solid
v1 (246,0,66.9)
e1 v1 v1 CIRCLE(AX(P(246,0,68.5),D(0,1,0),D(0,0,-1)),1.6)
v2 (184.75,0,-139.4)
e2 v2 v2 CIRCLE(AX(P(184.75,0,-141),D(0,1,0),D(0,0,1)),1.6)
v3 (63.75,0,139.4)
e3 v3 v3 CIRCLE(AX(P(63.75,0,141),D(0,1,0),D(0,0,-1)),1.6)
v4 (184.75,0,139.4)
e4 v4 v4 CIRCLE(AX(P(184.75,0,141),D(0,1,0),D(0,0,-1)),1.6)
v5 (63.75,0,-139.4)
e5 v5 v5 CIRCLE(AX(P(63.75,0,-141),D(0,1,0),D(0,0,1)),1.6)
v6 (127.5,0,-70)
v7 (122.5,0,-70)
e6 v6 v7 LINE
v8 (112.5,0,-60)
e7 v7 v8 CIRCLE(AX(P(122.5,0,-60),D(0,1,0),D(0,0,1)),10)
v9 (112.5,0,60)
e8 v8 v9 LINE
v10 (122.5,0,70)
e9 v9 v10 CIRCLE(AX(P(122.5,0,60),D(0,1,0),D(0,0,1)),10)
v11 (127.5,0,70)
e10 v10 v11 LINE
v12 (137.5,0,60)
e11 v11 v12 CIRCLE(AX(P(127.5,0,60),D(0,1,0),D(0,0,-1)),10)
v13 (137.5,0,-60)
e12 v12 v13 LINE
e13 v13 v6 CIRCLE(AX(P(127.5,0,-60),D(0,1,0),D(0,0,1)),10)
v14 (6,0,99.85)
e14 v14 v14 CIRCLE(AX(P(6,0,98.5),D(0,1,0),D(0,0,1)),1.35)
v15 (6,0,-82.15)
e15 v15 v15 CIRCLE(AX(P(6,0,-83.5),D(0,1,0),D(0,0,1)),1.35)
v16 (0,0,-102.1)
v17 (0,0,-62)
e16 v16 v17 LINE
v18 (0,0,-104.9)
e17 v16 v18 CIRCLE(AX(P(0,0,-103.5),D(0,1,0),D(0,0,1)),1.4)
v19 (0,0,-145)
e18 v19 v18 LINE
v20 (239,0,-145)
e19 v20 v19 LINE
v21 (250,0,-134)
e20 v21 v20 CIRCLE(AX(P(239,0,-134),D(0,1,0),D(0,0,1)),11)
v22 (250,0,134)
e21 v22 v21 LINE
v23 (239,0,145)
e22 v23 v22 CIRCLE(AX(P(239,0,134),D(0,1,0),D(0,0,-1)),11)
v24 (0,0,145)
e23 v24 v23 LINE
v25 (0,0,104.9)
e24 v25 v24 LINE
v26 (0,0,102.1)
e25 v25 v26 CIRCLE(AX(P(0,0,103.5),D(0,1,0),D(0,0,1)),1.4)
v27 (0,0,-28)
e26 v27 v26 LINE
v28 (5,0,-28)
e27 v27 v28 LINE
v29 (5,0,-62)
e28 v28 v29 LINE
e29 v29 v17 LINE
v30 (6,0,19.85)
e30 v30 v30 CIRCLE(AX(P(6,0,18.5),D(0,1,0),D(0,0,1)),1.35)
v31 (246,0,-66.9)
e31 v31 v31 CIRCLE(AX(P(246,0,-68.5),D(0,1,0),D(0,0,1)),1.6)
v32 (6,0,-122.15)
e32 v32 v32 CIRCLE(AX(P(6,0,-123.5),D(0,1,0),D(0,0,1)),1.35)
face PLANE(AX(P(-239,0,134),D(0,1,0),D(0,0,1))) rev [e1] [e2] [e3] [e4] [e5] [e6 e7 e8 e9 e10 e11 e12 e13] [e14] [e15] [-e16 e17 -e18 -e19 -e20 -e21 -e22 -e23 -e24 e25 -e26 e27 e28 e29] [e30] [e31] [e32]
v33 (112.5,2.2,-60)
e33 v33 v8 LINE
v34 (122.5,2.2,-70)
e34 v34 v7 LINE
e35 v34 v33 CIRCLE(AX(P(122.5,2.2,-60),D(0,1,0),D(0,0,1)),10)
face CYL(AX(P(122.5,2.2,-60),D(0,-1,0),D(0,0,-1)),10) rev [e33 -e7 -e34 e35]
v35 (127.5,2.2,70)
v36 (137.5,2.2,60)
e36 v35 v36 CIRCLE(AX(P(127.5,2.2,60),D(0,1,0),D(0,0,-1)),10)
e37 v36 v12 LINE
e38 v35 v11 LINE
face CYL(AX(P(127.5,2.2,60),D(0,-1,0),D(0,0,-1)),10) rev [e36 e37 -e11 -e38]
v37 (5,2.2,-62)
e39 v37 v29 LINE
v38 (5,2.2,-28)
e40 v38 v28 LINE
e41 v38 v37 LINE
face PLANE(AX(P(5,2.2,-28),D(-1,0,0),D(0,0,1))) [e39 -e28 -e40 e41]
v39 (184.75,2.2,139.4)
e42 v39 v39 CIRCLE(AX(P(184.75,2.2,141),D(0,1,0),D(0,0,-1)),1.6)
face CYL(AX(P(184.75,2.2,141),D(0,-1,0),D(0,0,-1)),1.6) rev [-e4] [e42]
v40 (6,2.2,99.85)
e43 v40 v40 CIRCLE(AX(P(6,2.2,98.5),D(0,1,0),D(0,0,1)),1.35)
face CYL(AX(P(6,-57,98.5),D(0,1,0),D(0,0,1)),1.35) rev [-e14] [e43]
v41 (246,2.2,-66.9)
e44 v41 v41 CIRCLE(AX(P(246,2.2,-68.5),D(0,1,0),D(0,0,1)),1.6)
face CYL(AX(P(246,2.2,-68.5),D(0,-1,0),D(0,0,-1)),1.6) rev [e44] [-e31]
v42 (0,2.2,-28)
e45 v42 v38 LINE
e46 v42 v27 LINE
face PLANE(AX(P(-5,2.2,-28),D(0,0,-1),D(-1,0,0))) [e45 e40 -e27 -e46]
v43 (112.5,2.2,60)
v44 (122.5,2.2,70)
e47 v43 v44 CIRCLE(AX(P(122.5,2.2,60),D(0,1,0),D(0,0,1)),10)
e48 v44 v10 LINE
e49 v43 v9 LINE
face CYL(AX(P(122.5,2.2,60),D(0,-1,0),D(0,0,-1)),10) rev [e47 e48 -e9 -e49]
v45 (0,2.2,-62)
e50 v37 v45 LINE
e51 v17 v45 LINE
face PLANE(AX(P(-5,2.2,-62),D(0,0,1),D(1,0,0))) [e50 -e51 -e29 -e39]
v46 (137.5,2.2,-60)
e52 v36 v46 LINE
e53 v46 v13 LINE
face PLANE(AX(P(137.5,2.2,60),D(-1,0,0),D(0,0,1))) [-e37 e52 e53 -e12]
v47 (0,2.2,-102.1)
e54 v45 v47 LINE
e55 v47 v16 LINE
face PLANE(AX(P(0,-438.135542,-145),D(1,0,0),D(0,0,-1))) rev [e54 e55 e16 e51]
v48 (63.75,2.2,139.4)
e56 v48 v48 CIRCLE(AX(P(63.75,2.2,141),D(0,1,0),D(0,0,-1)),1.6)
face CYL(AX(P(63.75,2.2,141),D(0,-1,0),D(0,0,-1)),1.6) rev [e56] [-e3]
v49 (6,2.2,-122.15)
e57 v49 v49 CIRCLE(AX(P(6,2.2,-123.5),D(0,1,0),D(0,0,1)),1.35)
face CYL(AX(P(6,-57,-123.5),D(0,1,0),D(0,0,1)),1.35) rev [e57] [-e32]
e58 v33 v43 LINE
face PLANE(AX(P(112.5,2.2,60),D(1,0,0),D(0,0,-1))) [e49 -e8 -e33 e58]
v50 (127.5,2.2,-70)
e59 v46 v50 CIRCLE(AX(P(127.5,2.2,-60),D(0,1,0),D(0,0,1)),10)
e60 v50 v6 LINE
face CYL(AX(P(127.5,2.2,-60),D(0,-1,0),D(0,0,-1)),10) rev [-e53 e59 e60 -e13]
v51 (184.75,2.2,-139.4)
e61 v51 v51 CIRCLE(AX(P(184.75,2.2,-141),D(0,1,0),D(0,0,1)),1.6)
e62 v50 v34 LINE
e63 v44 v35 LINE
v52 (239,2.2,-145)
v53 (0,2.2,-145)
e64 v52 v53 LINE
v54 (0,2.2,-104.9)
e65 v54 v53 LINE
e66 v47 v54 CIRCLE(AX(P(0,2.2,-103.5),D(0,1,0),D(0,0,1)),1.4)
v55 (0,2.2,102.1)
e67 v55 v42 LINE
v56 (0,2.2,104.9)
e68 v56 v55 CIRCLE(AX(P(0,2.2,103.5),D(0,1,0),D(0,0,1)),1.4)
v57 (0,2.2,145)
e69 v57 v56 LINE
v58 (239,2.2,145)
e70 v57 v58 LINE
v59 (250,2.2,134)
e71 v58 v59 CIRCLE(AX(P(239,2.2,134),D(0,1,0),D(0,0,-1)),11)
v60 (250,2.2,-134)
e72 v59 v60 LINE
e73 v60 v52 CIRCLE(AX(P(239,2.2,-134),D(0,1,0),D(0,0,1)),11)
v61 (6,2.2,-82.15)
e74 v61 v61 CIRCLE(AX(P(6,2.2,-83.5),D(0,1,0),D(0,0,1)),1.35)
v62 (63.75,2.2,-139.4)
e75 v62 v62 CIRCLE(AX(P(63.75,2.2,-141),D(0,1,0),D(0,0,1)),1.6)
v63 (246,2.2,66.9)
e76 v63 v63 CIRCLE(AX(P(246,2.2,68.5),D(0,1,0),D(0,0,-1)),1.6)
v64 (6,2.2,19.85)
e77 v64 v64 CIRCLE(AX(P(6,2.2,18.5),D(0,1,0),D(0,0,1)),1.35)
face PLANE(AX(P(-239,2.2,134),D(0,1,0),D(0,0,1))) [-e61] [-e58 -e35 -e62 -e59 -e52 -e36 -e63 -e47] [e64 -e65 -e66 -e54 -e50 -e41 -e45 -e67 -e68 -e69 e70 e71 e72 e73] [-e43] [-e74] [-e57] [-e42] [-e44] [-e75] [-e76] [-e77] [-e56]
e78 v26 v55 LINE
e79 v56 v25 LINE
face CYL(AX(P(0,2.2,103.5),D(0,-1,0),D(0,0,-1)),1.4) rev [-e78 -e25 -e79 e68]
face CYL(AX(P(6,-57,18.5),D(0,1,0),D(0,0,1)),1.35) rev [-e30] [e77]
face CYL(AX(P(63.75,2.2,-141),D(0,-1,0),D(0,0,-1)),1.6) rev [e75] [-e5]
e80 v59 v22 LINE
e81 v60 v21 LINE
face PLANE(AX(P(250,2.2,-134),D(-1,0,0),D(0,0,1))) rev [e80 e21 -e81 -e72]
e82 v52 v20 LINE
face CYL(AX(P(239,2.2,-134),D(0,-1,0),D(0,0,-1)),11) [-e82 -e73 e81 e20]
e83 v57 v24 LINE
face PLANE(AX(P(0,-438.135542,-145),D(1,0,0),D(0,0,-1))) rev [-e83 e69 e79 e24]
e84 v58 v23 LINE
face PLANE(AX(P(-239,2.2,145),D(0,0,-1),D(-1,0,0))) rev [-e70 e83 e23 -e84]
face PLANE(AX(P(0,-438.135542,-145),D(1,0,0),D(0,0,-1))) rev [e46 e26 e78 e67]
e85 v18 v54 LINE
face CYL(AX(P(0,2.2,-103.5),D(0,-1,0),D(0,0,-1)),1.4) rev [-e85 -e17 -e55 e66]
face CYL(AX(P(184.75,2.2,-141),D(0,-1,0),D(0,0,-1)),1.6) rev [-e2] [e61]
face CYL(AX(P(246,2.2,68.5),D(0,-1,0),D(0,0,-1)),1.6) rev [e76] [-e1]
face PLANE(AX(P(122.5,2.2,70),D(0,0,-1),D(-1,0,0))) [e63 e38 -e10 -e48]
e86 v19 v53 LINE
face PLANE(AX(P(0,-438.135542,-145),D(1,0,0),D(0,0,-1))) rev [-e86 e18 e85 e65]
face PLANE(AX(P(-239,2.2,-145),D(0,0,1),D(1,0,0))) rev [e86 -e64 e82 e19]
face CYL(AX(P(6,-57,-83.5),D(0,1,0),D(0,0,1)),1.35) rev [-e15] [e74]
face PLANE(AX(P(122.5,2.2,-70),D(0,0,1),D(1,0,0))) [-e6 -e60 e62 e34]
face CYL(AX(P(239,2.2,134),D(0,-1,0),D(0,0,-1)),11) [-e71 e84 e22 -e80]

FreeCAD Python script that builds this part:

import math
import FreeCAD as App
import Part
import Sketcher
from FreeCAD import Vector

doc = App.newDocument("Part")
body = doc.addObject("PartDesign::Body", "Body")

sketch1 = body.newObject("Sketcher::SketchObject", "Sketch")
sketch1.AttachmentSupport = (doc.getObject("XZ_Plane"), [""])
sketch1.MapMode = "FlatFace"
sketch1.addGeometry([
    Part.LineSegment(Vector(239, -145, 0), Vector(-239, -145, 0)),
    Part.ArcOfCircle(Part.Circle(Vector(-239, -134, 0), Vector(0, 0, 1), 11), math.radians(180), math.radians(270)),
    Part.LineSegment(Vector(-250, -134, 0), Vector(-250, 134, 0)),
    Part.ArcOfCircle(Part.Circle(Vector(-239, 134, 0), Vector(0, 0, 1), 11), math.radians(90), math.radians(180)),
    Part.LineSegment(Vector(-239, 145, 0), Vector(239, 145, 0)),
    Part.ArcOfCircle(Part.Circle(Vector(239, 134, 0), Vector(0, 0, 1), 11), math.radians(0), math.radians(90)),
    Part.LineSegment(Vector(250, 134, 0), Vector(250, -134, 0)),
    Part.ArcOfCircle(Part.Circle(Vector(239, -134, 0), Vector(0, 0, 1), 11), math.radians(-90), math.radians(0)),
    Part.Circle(Vector(184.8, 141, 0), Vector(0, 0, 1), 1.6),
    Part.Circle(Vector(63.8, 141, 0), Vector(0, 0, 1), 1.6),
    Part.Circle(Vector(246, 68.5, 0), Vector(0, 0, 1), 1.6),
    Part.Circle(Vector(-63.8, 141, 0), Vector(0, 0, 1), 1.6),
    Part.Circle(Vector(0, 103.5, 0), Vector(0, 0, 1), 1.4),
    Part.Circle(Vector(-184.8, 141, 0), Vector(0, 0, 1), 1.6),
    Part.Circle(Vector(-246, 68.5, 0), Vector(0, 0, 1), 1.6),
    Part.ArcOfCircle(Part.Circle(Vector(122.5, 60, 0), Vector(0, 0, 1), 10), math.radians(90), math.radians(180)),
    Part.LineSegment(Vector(112.5, 60, 0), Vector(112.5, -60, 0)),
    Part.ArcOfCircle(Part.Circle(Vector(122.5, -60, 0), Vector(0, 0, 1), 10), math.radians(180), math.radians(270)),
    Part.LineSegment(Vector(122.5, -70, 0), Vector(127.5, -70, 0)),
    Part.ArcOfCircle(Part.Circle(Vector(127.5, -60, 0), Vector(0, 0, 1), 10), math.radians(-90), math.radians(0)),
    Part.LineSegment(Vector(137.5, -60, 0), Vector(137.5, 60, 0)),
    Part.ArcOfCircle(Part.Circle(Vector(127.5, 60, 0), Vector(0, 0, 1), 10), math.radians(0), math.radians(90)),
    Part.LineSegment(Vector(127.5, 70, 0), Vector(122.5, 70, 0)),
    Part.Circle(Vector(246, -68.5, 0), Vector(0, 0, 1), 1.6),
    Part.Circle(Vector(184.8, -141, 0), Vector(0, 0, 1), 1.6),
    Part.Circle(Vector(63.8, -141, 0), Vector(0, 0, 1), 1.6),
    Part.LineSegment(Vector(-5, -28, 0), Vector(-5, -62, 0)),
    Part.LineSegment(Vector(-5, -62, 0), Vector(5, -62, 0)),
    Part.LineSegment(Vector(5, -62, 0), Vector(5, -28, 0)),
    Part.LineSegment(Vector(5, -28, 0), Vector(-5, -28, 0)),
    Part.ArcOfCircle(Part.Circle(Vector(-127.5, 60, 0), Vector(0, 0, 1), 10), math.radians(90), math.radians(180)),
    Part.LineSegment(Vector(-137.5, 60, 0), Vector(-137.5, -60, 0)),
    Part.ArcOfCircle(Part.Circle(Vector(-127.5, -60, 0), Vector(0, 0, 1), 10), math.radians(180), math.radians(270)),
    Part.LineSegment(Vector(-127.5, -70, 0), Vector(-122.5, -70, 0)),
    Part.ArcOfCircle(Part.Circle(Vector(-122.5, -60, 0), Vector(0, 0, 1), 10), math.radians(-90), math.radians(0)),
    Part.LineSegment(Vector(-112.5, -60, 0), Vector(-112.5, 60, 0)),
    Part.ArcOfCircle(Part.Circle(Vector(-122.5, 60, 0), Vector(0, 0, 1), 10), math.radians(0), math.radians(90)),
    Part.LineSegment(Vector(-122.5, 70, 0), Vector(-127.5, 70, 0)),
    Part.Circle(Vector(-246, -68.5, 0), Vector(0, 0, 1), 1.6),
    Part.Circle(Vector(0, -103.5, 0), Vector(0, 0, 1), 1.4),
    Part.Circle(Vector(-63.8, -141, 0), Vector(0, 0, 1), 1.6),
    Part.Circle(Vector(-184.8, -141, 0), Vector(0, 0, 1), 1.6),
], False)
sketch1.addConstraint([
    Sketcher.Constraint("Tangent", 0, 2, 1, 2),
    Sketcher.Constraint("Tangent", 1, 1, 2, 1),
    Sketcher.Constraint("Tangent", 2, 2, 3, 2),
    Sketcher.Constraint("Tangent", 3, 1, 4, 1),
    Sketcher.Constraint("Tangent", 4, 2, 5, 2),
    Sketcher.Constraint("Tangent", 5, 1, 6, 1),
    Sketcher.Constraint("Tangent", 6, 2, 7, 2),
    Sketcher.Constraint("Tangent", 7, 1, 0, 1),
    Sketcher.Constraint("Tangent", 15, 2, 16, 1),
    Sketcher.Constraint("Tangent", 16, 2, 17, 1),
    Sketcher.Constraint("Tangent", 17, 2, 18, 1),
    Sketcher.Constraint("Tangent", 18, 2, 19, 1),
    Sketcher.Constraint("Tangent", 19, 2, 20, 1),
    Sketcher.Constraint("Tangent", 20, 2, 21, 1),
    Sketcher.Constraint("Tangent", 21, 2, 22, 1),
    Sketcher.Constraint("Tangent", 22, 2, 15, 1),
    Sketcher.Constraint("Coincident", 26, 2, 27, 1),
    Sketcher.Constraint("Coincident", 27, 2, 28, 1),
    Sketcher.Constraint("Coincident", 28, 2, 29, 1),
    Sketcher.Constraint("Coincident", 29, 2, 26, 1),
    Sketcher.Constraint("Tangent", 30, 2, 31, 1),
    Sketcher.Constraint("Tangent", 31, 2, 32, 1),
    Sketcher.Constraint("Tangent", 32, 2, 33, 1),
    Sketcher.Constraint("Tangent", 33, 2, 34, 1),
    Sketcher.Constraint("Tangent", 34, 2, 35, 1),
    Sketcher.Constraint("Tangent", 35, 2, 36, 1),
    Sketcher.Constraint("Tangent", 36, 2, 37, 1),
    Sketcher.Constraint("Tangent", 37, 2, 30, 1),
    Sketcher.Constraint("Horizontal", 0),
    Sketcher.Constraint("Vertical", 2),
    Sketcher.Constraint("Horizontal", 4),
    Sketcher.Constraint("Vertical", 6),
    Sketcher.Constraint("Vertical", 16),
    Sketcher.Constraint("Horizontal", 18),
    Sketcher.Constraint("Vertical", 20),
    Sketcher.Constraint("Horizontal", 22),
    Sketcher.Constraint("Vertical", 26),
    Sketcher.Constraint("Horizontal", 27),
    Sketcher.Constraint("Vertical", 28),
    Sketcher.Constraint("Horizontal", 29),
    Sketcher.Constraint("Vertical", 31),
    Sketcher.Constraint("Horizontal", 33),
    Sketcher.Constraint("Vertical", 35),
    Sketcher.Constraint("Horizontal", 37),
    Sketcher.Constraint("Equal", 1, 3),
    Sketcher.Constraint("Equal", 3, 5),
    Sketcher.Constraint("Equal", 5, 7),
    Sketcher.Constraint("Equal", 8, 9),
    Sketcher.Constraint("Equal", 9, 10),
    Sketcher.Constraint("Equal", 10, 11),
    Sketcher.Constraint("Equal", 11, 13),
    Sketcher.Constraint("Equal", 13, 14),
    Sketcher.Constraint("Equal", 15, 17),
    Sketcher.Constraint("Equal", 17, 19),
    Sketcher.Constraint("Equal", 19, 21),
    Sketcher.Constraint("Equal", 14, 23),
    Sketcher.Constraint("Equal", 23, 24),
    Sketcher.Constraint("Equal", 24, 25),
    Sketcher.Constraint("Equal", 21, 30),
    Sketcher.Constraint("Equal", 30, 32),
    Sketcher.Constraint("Equal", 32, 34),
    Sketcher.Constraint("Equal", 34, 36),
    Sketcher.Constraint("Equal", 25, 38),
    Sketcher.Constraint("Equal", 12, 39),
    Sketcher.Constraint("Equal", 38, 40),
    Sketcher.Constraint("Equal", 40, 41),
    Sketcher.Constraint("Symmetric", 1, 3, 5, 3, -1, 1),
    Sketcher.Constraint("Symmetric", 14, 3, 23, 3, -1, 1),
    Sketcher.Constraint("Symmetric", 13, 3, 24, 3, -1, 1),
    Sketcher.Constraint("Symmetric", 11, 3, 25, 3, -1, 1),
    Sketcher.Constraint("Symmetric", 19, 3, 30, 3, -1, 1),
    Sketcher.Constraint("Symmetric", 15, 3, 34, 3, -1, 1),
    Sketcher.Constraint("Symmetric", 10, 3, 38, 3, -1, 1),
    Sketcher.Constraint("Symmetric", 12, 3, 39, 3, -1, 1),
    Sketcher.Constraint("Symmetric", 9, 3, 40, 3, -1, 1),
    Sketcher.Constraint("Symmetric", 8, 3, 41, 3, -1, 1),
    Sketcher.Constraint("Symmetric", 9, 3, 11, 3, -2),
    Sketcher.Constraint("Symmetric", 8, 3, 13, 3, -2),
    Sketcher.Constraint("Symmetric", 10, 3, 14, 3, -2),
    Sketcher.Constraint("PointOnObject", 12, 3, -2),
    Sketcher.Constraint("Horizontal", 8, 3, 9, 3),
    Sketcher.Constraint("Horizontal", 21, 3, 30, 3),
    Sketcher.Constraint("Radius", 1, 11.0),
    Sketcher.Constraint("Radius", 15, 10.0),
    Sketcher.Constraint("Diameter", 8, 3.2),
    Sketcher.Constraint("Diameter", 12, 2.8),
    Sketcher.Constraint("DistanceX", 0, 2, 0, 1, 478.0),
    Sketcher.Constraint("DistanceX", 18, 1, 18, 2, 5.0),
    Sketcher.Constraint("DistanceX", 27, 1, 27, 2, 10.0),
    Sketcher.Constraint("DistanceY", 2, 1, 2, 2, 268.0),
    Sketcher.Constraint("DistanceY", 16, 2, 16, 1, 120.0),
    Sketcher.Constraint("DistanceY", 26, 2, 26, 1, 34.0),
    Sketcher.Constraint("DistanceY", -1, 1, 8, 3, 141.0),
    Sketcher.Constraint("DistanceX", -1, 1, 10, 3, 246.0),
    Sketcher.Constraint("DistanceX", 26, 2, -1, 1, 5.0),
    Sketcher.Constraint("DistanceY", 26, 2, -1, 1, 62.0),
    Sketcher.Constraint("DistanceX", 9, 3, 8, 3, 121.0),
    Sketcher.Constraint("DistanceY", 14, 3, 12, 3, 35.0),
    Sketcher.Constraint("DistanceY", 23, 3, 10, 3, 137.0),
    Sketcher.Constraint("DistanceX", -1, 1, 15, 3, 122.5),
    Sketcher.Constraint("DistanceX", 11, 3, 9, 3, 127.5),
])
pad1 = body.newObject("PartDesign::Pad", "Pad")
pad1.Profile = sketch1
pad1.Length = 2.2
pad1.Reversed = True

sketch2 = body.newObject("Sketcher::SketchObject", "Sketch001")
sketch2.AttachmentSupport = (doc.getObject("XZ_Plane"), [""])
sketch2.MapMode = "FlatFace"
sketch2.AttachmentOffset = App.Placement(Vector(0, 0, -2.2), App.Rotation())
sketch2.addGeometry([
    Part.Circle(Vector(-6, 18.5, 0), Vector(0, 0, 1), 1.4),
    Part.Circle(Vector(6, 18.5, 0), Vector(0, 0, 1), 1.4),
    Part.Circle(Vector(-6, 98.5, 0), Vector(0, 0, 1), 1.4),
    Part.Circle(Vector(6, 98.5, 0), Vector(0, 0, 1), 1.4),
    Part.Circle(Vector(-6, -123.5, 0), Vector(0, 0, 1), 1.4),
    Part.Circle(Vector(6, -123.5, 0), Vector(0, 0, 1), 1.4),
    Part.Circle(Vector(-6, -83.5, 0), Vector(0, 0, 1), 1.4),
    Part.Circle(Vector(6, -83.5, 0), Vector(0, 0, 1), 1.4),
], False)
sketch2.addConstraint([
    Sketcher.Constraint("Equal", 0, 1),
    Sketcher.Constraint("Equal", 1, 2),
    Sketcher.Constraint("Equal", 2, 3),
    Sketcher.Constraint("Equal", 3, 4),
    Sketcher.Constraint("Equal", 4, 5),
    Sketcher.Constraint("Equal", 5, 6),
    Sketcher.Constraint("Equal", 6, 7),
    Sketcher.Constraint("Symmetric", 0, 3, 1, 3, -2),
    Sketcher.Constraint("Symmetric", 2, 3, 3, 3, -2),
    Sketcher.Constraint("Symmetric", 4, 3, 5, 3, -2),
    Sketcher.Constraint("Symmetric", 6, 3, 7, 3, -2),
    Sketcher.Constraint("Vertical", 0, 3, 2, 3),
    Sketcher.Constraint("Vertical", 2, 3, 4, 3),
    Sketcher.Constraint("Vertical", 4, 3, 6, 3),
    Sketcher.Constraint("Diameter", 0, 2.7),
    Sketcher.Constraint("DistanceX", 0, 3, -1, 1, 6.0),
    Sketcher.Constraint("DistanceY", 0, 3, 2, 3, 80.0),
    Sketcher.Constraint("DistanceY", 4, 3, 0, 3, 142.0),
    Sketcher.Constraint("DistanceY", 4, 3, 6, 3, 40.0),
    Sketcher.Constraint("DistanceY", -1, 1, 0, 3, 18.5),
])
pocket1 = body.newObject("PartDesign::Pocket", "Pocket")
pocket1.Profile = sketch2
pocket1.Length = 59.2
pocket1.Reversed = True

sketch3 = body.newObject("Sketcher::SketchObject", "Sketch002")
sketch3.AttachmentSupport = (doc.getObject("XZ_Plane"), [""])
sketch3.MapMode = "FlatFace"
sketch3.AttachmentOffset = App.Placement(Vector(0, 0, -2.2), App.Rotation())
sketch3.addGeometry([
    Part.LineSegment(Vector(-293, -145, 0), Vector(-293, 181, 0)),
    Part.LineSegment(Vector(-293, 181, 0), Vector(0, 181, 0)),
    Part.LineSegment(Vector(0, 181, 0), Vector(0, -145, 0)),
    Part.LineSegment(Vector(0, -145, 0), Vector(-293, -145, 0)),
], False)
sketch3.addConstraint([
    Sketcher.Constraint("Coincident", 0, 2, 1, 1),
    Sketcher.Constraint("Coincident", 1, 2, 2, 1),
    Sketcher.Constraint("Coincident", 2, 2, 3, 1),
    Sketcher.Constraint("Coincident", 3, 2, 0, 1),
    Sketcher.Constraint("Vertical", 0),
    Sketcher.Constraint("Horizontal", 1),
    Sketcher.Constraint("Vertical", 2),
    Sketcher.Constraint("Horizontal", 3),
    Sketcher.Constraint("PointOnObject", 1, 2, -2),
    Sketcher.Constraint("DistanceY", 2, 2, -1, 1, 145.0),
    Sketcher.Constraint("DistanceX", 1, 1, 1, 2, 292.714784),
    Sketcher.Constraint("DistanceY", 0, 1, 0, 2, 326.007375),
])
pocket2 = body.newObject("PartDesign::Pocket", "Pocket001")
pocket2.Profile = sketch3
pocket2.Length = 2.2
pocket2.Reversed = True

doc.recompute()
